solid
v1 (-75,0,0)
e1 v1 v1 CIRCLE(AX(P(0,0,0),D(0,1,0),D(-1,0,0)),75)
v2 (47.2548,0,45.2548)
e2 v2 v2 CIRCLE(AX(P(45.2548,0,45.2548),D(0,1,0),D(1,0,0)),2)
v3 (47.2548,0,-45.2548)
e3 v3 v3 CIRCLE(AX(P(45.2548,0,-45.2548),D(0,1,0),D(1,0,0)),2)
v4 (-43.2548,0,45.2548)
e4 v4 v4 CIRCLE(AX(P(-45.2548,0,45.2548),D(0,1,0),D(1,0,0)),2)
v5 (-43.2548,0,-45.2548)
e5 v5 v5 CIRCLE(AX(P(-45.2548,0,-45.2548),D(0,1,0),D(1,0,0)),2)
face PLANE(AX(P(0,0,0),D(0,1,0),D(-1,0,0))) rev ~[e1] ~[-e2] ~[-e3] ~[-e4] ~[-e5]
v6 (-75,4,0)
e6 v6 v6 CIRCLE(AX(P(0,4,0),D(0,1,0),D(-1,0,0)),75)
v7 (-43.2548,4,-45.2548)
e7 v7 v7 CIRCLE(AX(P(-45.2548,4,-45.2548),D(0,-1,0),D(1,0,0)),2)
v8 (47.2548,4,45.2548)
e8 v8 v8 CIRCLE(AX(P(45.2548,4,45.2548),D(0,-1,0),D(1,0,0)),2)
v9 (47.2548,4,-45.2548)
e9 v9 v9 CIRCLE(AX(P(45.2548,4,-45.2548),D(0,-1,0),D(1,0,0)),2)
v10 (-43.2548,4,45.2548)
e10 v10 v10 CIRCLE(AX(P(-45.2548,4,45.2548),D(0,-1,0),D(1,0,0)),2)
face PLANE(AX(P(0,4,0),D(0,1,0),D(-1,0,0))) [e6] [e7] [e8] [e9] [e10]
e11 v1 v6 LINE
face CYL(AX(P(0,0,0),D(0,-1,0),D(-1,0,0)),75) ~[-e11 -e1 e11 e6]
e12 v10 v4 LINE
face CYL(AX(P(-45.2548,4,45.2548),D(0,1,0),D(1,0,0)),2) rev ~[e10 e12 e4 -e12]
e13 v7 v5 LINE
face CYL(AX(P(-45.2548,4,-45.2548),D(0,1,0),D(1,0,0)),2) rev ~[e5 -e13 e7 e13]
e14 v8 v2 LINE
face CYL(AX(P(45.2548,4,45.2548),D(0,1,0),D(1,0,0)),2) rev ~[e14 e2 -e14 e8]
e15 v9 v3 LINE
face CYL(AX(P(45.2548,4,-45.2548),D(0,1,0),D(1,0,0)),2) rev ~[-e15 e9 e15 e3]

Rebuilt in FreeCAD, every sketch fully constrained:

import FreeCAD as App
import Part
import Sketcher
from FreeCAD import Vector

doc = App.newDocument("Part")
params = doc.addObject("Spreadsheet::Sheet", "Params")
for row, (alias, value) in enumerate([
    ("sketch1_diameter", "150 mm"),
    ("pad1_length", "4 mm"),
    ("sketch2_diameter", "4 mm"),
    ("pocket1_length", "4 mm"),
], start=1):
    params.set(f"A{row}", alias)
    params.set(f"B{row}", "=" + value)
    params.setAlias(f"B{row}", alias)

body = doc.addObject("PartDesign::Body", "Body")

sketch1 = doc.addObject("Sketcher::SketchObject", "Sketch")
body.addObject(sketch1)
sketch1.AttachmentSupport = (doc.XZ_Plane, [""])
sketch1.MapMode = "FlatFace"
sketch1.addGeometry(Part.Circle(Vector(0, 0, 0), Vector(0, 0, 1), 75), False)
sketch1.addConstraint([
    Sketcher.Constraint("Coincident", 0, 3, -1, 1),
    Sketcher.Constraint("Diameter", 0, 150.0),
])
sketch1.setExpression("Constraints[1]", "Params.sketch1_diameter")
pad1 = doc.addObject("PartDesign::Pad", "Pad")
body.addObject(pad1)
pad1.Profile = sketch1
pad1.setExpression("Length", "Params.pad1_length")
pad1.Reversed = True

sketch2 = doc.addObject("Sketcher::SketchObject", "Sketch001")
body.addObject(sketch2)
sketch2.AttachmentSupport = (doc.XZ_Plane, [""])
sketch2.MapMode = "FlatFace"
sketch2.AttachmentOffset = App.Placement(Vector(0, 0, -4), App.Rotation())
sketch2.addGeometry([
    Part.Circle(Vector(45.2548, -45.2548, 0), Vector(0, 0, 1), 2),
    Part.Circle(Vector(45.2548, 45.2548, 0), Vector(0, 0, 1), 2),
    Part.Circle(Vector(-45.2548, -45.2548, 0), Vector(0, 0, 1), 2),
    Part.Circle(Vector(-45.2548, 45.2548, 0), Vector(0, 0, 1), 2),
], False)
sketch2.addConstraint([
    Sketcher.Constraint("Equal", 0, 1),
    Sketcher.Constraint("Equal", 1, 2),
    Sketcher.Constraint("Equal", 2, 3),
    Sketcher.Constraint("Symmetric", 1, 3, 2, 3, -1, 1),
    Sketcher.Constraint("Symmetric", 0, 3, 3, 3, -1, 1),
    Sketcher.Constraint("Symmetric", 0, 3, 2, 3, -2),
    Sketcher.Constraint("Diameter", 0, 4.0),
    Sketcher.Constraint("DistanceX", -1, 1, 0, 3, 45.2548),
    Sketcher.Constraint("DistanceY", 0, 3, -1, 1, 45.2548),
])
sketch2.setExpression("Constraints[6]", "Params.sketch2_diameter")
pocket1 = doc.addObject("PartDesign::Pocket", "Pocket")
body.addObject(pocket1)
pocket1.Profile = sketch2
pocket1.setExpression("Length", "Params.pocket1_length")
pocket1.Reversed = True

doc.recompute()
